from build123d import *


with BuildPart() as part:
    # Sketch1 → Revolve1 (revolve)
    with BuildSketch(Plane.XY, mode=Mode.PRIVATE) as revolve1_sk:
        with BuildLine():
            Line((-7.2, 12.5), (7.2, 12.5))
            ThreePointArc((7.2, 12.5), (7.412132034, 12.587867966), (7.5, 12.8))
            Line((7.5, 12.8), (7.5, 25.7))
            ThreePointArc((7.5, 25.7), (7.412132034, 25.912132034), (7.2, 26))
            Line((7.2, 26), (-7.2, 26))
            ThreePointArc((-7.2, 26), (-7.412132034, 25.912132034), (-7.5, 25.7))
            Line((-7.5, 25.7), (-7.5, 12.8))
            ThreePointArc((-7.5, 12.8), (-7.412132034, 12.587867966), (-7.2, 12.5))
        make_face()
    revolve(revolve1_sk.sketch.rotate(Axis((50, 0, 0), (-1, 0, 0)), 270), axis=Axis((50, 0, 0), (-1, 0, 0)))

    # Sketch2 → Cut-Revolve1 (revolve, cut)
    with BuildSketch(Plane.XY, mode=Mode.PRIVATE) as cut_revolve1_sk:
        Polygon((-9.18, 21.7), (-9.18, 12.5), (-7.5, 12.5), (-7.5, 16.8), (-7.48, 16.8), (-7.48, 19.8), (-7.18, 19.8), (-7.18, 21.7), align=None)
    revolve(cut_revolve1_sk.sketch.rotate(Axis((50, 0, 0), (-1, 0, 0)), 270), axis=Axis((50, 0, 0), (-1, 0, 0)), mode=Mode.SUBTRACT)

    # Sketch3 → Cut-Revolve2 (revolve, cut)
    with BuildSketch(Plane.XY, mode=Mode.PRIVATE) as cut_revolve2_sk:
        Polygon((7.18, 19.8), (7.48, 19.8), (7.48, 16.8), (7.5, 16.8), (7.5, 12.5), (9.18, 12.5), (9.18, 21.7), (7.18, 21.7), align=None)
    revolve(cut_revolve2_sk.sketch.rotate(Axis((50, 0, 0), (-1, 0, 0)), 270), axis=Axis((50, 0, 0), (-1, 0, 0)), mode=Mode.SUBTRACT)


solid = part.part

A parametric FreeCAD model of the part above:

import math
import FreeCAD as App
import Part
import Sketcher
from FreeCAD import Vector


def add_polygon(sketch, points):
    """Adds a closed chain of lines whose ends are joined by coincident constraints."""
    first, n = sketch.GeometryCount, len(points)
    for a, b in zip(points, points[1:] + points[:1]):
        sketch.addGeometry(Part.LineSegment(App.Vector(*a, 0), App.Vector(*b, 0)), False)
    for i in range(n):
        sketch.addConstraint(Sketcher.Constraint("Coincident", first + i, 2, first + (i + 1) % n, 1))

doc = App.newDocument("Part")
body = doc.addObject("PartDesign::Body", "Body")

# Sketch on XY plane
sketch1 = doc.addObject("Sketcher::SketchObject", "Sketch")
body.addObject(sketch1)
sketch1.AttachmentSupport = (doc.XY_Plane, [""])
sketch1.MapMode = "FlatFace"
sketch1.addGeometry(Part.LineSegment(Vector(-7.2, 12.5, 0), Vector(7.2, 12.5, 0)), False)
sketch1.addGeometry(Part.ArcOfCircle(Part.Circle(Vector(7.2, 12.8, 0), Vector(0, 0, 1), 0.3), math.radians(-90), math.radians(0)), False)
sketch1.addGeometry(Part.LineSegment(Vector(7.5, 12.8, 0), Vector(7.5, 25.7, 0)), False)
sketch1.addGeometry(Part.ArcOfCircle(Part.Circle(Vector(7.2, 25.7, 0), Vector(0, 0, 1), 0.3), math.radians(0), math.radians(90)), False)
sketch1.addGeometry(Part.LineSegment(Vector(7.2, 26, 0), Vector(-7.2, 26, 0)), False)
sketch1.addGeometry(Part.ArcOfCircle(Part.Circle(Vector(-7.2, 25.7, 0), Vector(0, 0, 1), 0.3), math.radians(90), math.radians(180)), False)
sketch1.addGeometry(Part.LineSegment(Vector(-7.5, 25.7, 0), Vector(-7.5, 12.8, 0)), False)
sketch1.addGeometry(Part.ArcOfCircle(Part.Circle(Vector(-7.2, 12.8, 0), Vector(0, 0, 1), 0.3), math.radians(-180), math.radians(-90)), False)
sketch1.addConstraint(Sketcher.Constraint("Tangent", 0, 2, 1, 1))
sketch1.addConstraint(Sketcher.Constraint("Tangent", 1, 2, 2, 1))
sketch1.addConstraint(Sketcher.Constraint("Tangent", 2, 2, 3, 1))
sketch1.addConstraint(Sketcher.Constraint("Tangent", 3, 2, 4, 1))
sketch1.addConstraint(Sketcher.Constraint("Tangent", 4, 2, 5, 1))
sketch1.addConstraint(Sketcher.Constraint("Tangent", 5, 2, 6, 1))
sketch1.addConstraint(Sketcher.Constraint("Tangent", 6, 2, 7, 1))
sketch1.addConstraint(Sketcher.Constraint("Tangent", 7, 2, 0, 1))
sketch1.addConstraint(Sketcher.Constraint("Horizontal", 0))
sketch1.addConstraint(Sketcher.Constraint("Vertical", 2))
sketch1.addConstraint(Sketcher.Constraint("Horizontal", 4))
sketch1.addConstraint(Sketcher.Constraint("Vertical", 6))
sketch1.addConstraint(Sketcher.Constraint("Equal", 1, 3))
sketch1.addConstraint(Sketcher.Constraint("Equal", 3, 5))
sketch1.addConstraint(Sketcher.Constraint("Equal", 5, 7))
sketch1.addConstraint(Sketcher.Constraint("Radius", 1, 0.3))
sketch1.addConstraint(Sketcher.Constraint("DistanceX", 0, 1, 0, 2, 14.4))
sketch1.addConstraint(Sketcher.Constraint("DistanceY", 2, 1, 2, 2, 12.9))
sketch1.addConstraint(Sketcher.Constraint("DistanceY", -1, 1, 3, 2, 26.0))
sketch1.addConstraint(Sketcher.Constraint("DistanceX", -1, 1, 1, 3, 7.2))
revolution = doc.addObject("PartDesign::Revolution", "Revolution")
body.addObject(revolution)
revolution.Profile = sketch1
revolution.ReferenceAxis = (sketch1, ["H_Axis"])
revolution.Angle = 360

# Sketch on XY plane
sketch2 = doc.addObject("Sketcher::SketchObject", "Sketch001")
body.addObject(sketch2)
sketch2.AttachmentSupport = (doc.XY_Plane, [""])
sketch2.MapMode = "FlatFace"
add_polygon(sketch2, [(-9.18, 21.7), (-9.18, 12.5), (-7.5, 12.5), (-7.5, 16.8), (-7.48, 16.8), (-7.48, 19.8), (-7.18, 19.8), (-7.18, 21.7)])  # lines 0-7
sketch2.addConstraint(Sketcher.Constraint("Vertical", 0))
sketch2.addConstraint(Sketcher.Constraint("Horizontal", 1))
sketch2.addConstraint(Sketcher.Constraint("Vertical", 2))
sketch2.addConstraint(Sketcher.Constraint("Horizontal", 3))
sketch2.addConstraint(Sketcher.Constraint("Vertical", 4))
sketch2.addConstraint(Sketcher.Constraint("Horizontal", 5))
sketch2.addConstraint(Sketcher.Constraint("Vertical", 6))
sketch2.addConstraint(Sketcher.Constraint("Horizontal", 7))
sketch2.addConstraint(Sketcher.Constraint("DistanceX", 7, 2, 7, 1, 2.0))
sketch2.addConstraint(Sketcher.Constraint("DistanceY", 4, 1, 4, 2, 3.0))
sketch2.addConstraint(Sketcher.Constraint("DistanceX", 5, 1, 5, 2, 0.3))
sketch2.addConstraint(Sketcher.Constraint("DistanceY", 0, 2, 0, 1, 9.2))
sketch2.addConstraint(Sketcher.Constraint("DistanceY", 2, 1, 2, 2, 4.3))
sketch2.addConstraint(Sketcher.Constraint("DistanceX", 1, 1, 1, 2, 1.68))
sketch2.addConstraint(Sketcher.Constraint("DistanceY", -1, 1, 0, 2, 12.5))
sketch2.addConstraint(Sketcher.Constraint("DistanceX", 1, 2, -1, 1, 7.5))
groove = doc.addObject("PartDesign::Groove", "Groove")
body.addObject(groove)
groove.Profile = sketch2
groove.ReferenceAxis = (sketch2, ["H_Axis"])
groove.Angle = 360

# Sketch on XY plane
sketch3 = doc.addObject("Sketcher::SketchObject", "Sketch002")
body.addObject(sketch3)
sketch3.AttachmentSupport = (doc.XY_Plane, [""])
sketch3.MapMode = "FlatFace"
add_polygon(sketch3, [(7.18, 19.8), (7.48, 19.8), (7.48, 16.8), (7.5, 16.8), (7.5, 12.5), (9.18, 12.5), (9.18, 21.7), (7.18, 21.7)])  # lines 0-7
sketch3.addConstraint(Sketcher.Constraint("Horizontal", 0))
sketch3.addConstraint(Sketcher.Constraint("Vertical", 1))
sketch3.addConstraint(Sketcher.Constraint("Horizontal", 2))
sketch3.addConstraint(Sketcher.Constraint("Vertical", 3))
sketch3.addConstraint(Sketcher.Constraint("Horizontal", 4))
sketch3.addConstraint(Sketcher.Constraint("Vertical", 5))
sketch3.addConstraint(Sketcher.Constraint("Horizontal", 6))
sketch3.addConstraint(Sketcher.Constraint("Vertical", 7))
sketch3.addConstraint(Sketcher.Constraint("DistanceX", 6, 2, 6, 1, 2.0))
sketch3.addConstraint(Sketcher.Constraint("DistanceY", 1, 2, 1, 1, 3.0))
sketch3.addConstraint(Sketcher.Constraint("DistanceX", 0, 1, 0, 2, 0.3))
sketch3.addConstraint(Sketcher.Constraint("DistanceY", 3, 2, 3, 1, 4.3))
sketch3.addConstraint(Sketcher.Constraint("DistanceY", 5, 1, 5, 2, 9.2))
sketch3.addConstraint(Sketcher.Constraint("DistanceX", 2, 1, 2, 2, 0.02))
sketch3.addConstraint(Sketcher.Constraint("DistanceY", -1, 1, 0, 2, 19.8))
sketch3.addConstraint(Sketcher.Constraint("DistanceX", -1, 1, 2, 2, 7.5))
groove2 = doc.addObject("PartDesign::Groove", "Groove001")
body.addObject(groove2)
groove2.Profile = sketch3
groove2.ReferenceAxis = (sketch3, ["H_Axis"])
groove2.Angle = 360

doc.recompute()
